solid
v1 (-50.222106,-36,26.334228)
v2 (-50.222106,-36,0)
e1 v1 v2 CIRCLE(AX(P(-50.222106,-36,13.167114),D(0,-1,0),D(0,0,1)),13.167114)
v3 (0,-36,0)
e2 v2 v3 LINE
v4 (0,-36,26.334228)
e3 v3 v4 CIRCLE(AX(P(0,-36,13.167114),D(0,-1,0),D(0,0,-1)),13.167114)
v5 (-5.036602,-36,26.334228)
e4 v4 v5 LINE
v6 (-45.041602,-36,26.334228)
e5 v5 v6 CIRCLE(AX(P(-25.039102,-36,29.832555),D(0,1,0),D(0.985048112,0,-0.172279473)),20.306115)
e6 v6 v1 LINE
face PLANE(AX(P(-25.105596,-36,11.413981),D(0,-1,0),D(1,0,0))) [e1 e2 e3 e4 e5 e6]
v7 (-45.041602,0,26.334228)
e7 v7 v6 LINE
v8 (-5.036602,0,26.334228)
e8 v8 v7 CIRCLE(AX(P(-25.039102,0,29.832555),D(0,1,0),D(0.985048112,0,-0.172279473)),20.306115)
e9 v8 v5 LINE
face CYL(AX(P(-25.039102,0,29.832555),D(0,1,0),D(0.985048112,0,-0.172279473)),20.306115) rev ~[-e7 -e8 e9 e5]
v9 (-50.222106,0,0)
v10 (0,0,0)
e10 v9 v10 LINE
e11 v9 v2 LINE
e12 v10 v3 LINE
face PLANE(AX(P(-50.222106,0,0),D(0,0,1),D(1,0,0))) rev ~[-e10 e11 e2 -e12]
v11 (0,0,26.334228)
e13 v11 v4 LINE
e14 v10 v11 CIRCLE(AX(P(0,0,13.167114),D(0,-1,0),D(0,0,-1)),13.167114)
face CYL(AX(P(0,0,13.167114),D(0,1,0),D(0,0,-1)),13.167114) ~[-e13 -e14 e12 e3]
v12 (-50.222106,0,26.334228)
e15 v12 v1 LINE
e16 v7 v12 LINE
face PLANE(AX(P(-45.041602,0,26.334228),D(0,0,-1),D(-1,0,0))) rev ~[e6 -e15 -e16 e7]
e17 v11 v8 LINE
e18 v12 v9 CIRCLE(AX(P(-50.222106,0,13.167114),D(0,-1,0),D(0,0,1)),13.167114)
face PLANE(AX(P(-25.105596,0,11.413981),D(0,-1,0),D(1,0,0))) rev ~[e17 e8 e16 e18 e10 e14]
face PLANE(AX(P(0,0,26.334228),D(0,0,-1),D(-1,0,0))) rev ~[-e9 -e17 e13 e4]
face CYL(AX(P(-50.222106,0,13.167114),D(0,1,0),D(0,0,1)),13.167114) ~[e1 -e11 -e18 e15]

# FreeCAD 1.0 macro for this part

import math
import FreeCAD as App
import Part
import Sketcher
from FreeCAD import Vector

doc = App.newDocument("Part")
body = doc.addObject("PartDesign::Body", "Body")

# Sketch on XZ plane
sketch1 = body.newObject("Sketcher::SketchObject", "Sketch")
sketch1.AttachmentSupport = (doc.getObject("XZ_Plane"), [""])
sketch1.MapMode = "FlatFace"
sketch1.addGeometry([
    Part.LineSegment(Vector(-50.222106, 0, 0), Vector(0, 0, 0)),  # 0
    Part.ArcOfCircle(Part.Circle(Vector(0, 13.167114, 0), Vector(0, 0, 1), 13.167114), math.radians(-90), math.radians(90)),  # 1
    Part.LineSegment(Vector(0, 26.334228, 0), Vector(-5.036602, 26.334228, 0)),  # 2
    Part.ArcOfCircle(Part.Circle(Vector(-25.039102, 29.832555, 0), Vector(0, 0, 1), 20.306115), math.radians(-170.079621), math.radians(-9.920379)),  # 3
    Part.LineSegment(Vector(-45.041602, 26.334228, 0), Vector(-50.222106, 26.334228, 0)),  # 4
    Part.ArcOfCircle(Part.Circle(Vector(-50.222106, 13.167114, 0), Vector(0, 0, 1), 13.167114), math.radians(90), math.radians(270)),  # 5
], False)
sketch1.addConstraint([
    Sketcher.Constraint("Tangent", 0, 2, 1, 1),
    Sketcher.Constraint("Tangent", 1, 2, 2, 1),
    Sketcher.Constraint("Coincident", 2, 2, 3, 2),
    Sketcher.Constraint("Coincident", 3, 1, 4, 1),
    Sketcher.Constraint("Tangent", 4, 2, 5, 1),
    Sketcher.Constraint("Tangent", 5, 2, 0, 1),
    Sketcher.Constraint("Horizontal", 0),
    Sketcher.Constraint("Horizontal", 2),
    Sketcher.Constraint("Horizontal", 4),
    Sketcher.Constraint("Coincident", 0, 2, -1, 1),
    Sketcher.Constraint("Equal", 1, 5),
    Sketcher.Constraint("Radius", 1, 13.167114),
    Sketcher.Constraint("Radius", 3, 20.306115),
    Sketcher.Constraint("DistanceX", 3, 1, 2, 2, 40.005),
    Sketcher.Constraint("DistanceX", 3, 3, -1, 1, 25.039102),
    Sketcher.Constraint("DistanceX", 0, 1, 0, 2, 50.222106),
])
pad1 = body.newObject("PartDesign::Pad", "Pad")
pad1.Profile = sketch1
pad1.Length = 36

doc.recompute()
